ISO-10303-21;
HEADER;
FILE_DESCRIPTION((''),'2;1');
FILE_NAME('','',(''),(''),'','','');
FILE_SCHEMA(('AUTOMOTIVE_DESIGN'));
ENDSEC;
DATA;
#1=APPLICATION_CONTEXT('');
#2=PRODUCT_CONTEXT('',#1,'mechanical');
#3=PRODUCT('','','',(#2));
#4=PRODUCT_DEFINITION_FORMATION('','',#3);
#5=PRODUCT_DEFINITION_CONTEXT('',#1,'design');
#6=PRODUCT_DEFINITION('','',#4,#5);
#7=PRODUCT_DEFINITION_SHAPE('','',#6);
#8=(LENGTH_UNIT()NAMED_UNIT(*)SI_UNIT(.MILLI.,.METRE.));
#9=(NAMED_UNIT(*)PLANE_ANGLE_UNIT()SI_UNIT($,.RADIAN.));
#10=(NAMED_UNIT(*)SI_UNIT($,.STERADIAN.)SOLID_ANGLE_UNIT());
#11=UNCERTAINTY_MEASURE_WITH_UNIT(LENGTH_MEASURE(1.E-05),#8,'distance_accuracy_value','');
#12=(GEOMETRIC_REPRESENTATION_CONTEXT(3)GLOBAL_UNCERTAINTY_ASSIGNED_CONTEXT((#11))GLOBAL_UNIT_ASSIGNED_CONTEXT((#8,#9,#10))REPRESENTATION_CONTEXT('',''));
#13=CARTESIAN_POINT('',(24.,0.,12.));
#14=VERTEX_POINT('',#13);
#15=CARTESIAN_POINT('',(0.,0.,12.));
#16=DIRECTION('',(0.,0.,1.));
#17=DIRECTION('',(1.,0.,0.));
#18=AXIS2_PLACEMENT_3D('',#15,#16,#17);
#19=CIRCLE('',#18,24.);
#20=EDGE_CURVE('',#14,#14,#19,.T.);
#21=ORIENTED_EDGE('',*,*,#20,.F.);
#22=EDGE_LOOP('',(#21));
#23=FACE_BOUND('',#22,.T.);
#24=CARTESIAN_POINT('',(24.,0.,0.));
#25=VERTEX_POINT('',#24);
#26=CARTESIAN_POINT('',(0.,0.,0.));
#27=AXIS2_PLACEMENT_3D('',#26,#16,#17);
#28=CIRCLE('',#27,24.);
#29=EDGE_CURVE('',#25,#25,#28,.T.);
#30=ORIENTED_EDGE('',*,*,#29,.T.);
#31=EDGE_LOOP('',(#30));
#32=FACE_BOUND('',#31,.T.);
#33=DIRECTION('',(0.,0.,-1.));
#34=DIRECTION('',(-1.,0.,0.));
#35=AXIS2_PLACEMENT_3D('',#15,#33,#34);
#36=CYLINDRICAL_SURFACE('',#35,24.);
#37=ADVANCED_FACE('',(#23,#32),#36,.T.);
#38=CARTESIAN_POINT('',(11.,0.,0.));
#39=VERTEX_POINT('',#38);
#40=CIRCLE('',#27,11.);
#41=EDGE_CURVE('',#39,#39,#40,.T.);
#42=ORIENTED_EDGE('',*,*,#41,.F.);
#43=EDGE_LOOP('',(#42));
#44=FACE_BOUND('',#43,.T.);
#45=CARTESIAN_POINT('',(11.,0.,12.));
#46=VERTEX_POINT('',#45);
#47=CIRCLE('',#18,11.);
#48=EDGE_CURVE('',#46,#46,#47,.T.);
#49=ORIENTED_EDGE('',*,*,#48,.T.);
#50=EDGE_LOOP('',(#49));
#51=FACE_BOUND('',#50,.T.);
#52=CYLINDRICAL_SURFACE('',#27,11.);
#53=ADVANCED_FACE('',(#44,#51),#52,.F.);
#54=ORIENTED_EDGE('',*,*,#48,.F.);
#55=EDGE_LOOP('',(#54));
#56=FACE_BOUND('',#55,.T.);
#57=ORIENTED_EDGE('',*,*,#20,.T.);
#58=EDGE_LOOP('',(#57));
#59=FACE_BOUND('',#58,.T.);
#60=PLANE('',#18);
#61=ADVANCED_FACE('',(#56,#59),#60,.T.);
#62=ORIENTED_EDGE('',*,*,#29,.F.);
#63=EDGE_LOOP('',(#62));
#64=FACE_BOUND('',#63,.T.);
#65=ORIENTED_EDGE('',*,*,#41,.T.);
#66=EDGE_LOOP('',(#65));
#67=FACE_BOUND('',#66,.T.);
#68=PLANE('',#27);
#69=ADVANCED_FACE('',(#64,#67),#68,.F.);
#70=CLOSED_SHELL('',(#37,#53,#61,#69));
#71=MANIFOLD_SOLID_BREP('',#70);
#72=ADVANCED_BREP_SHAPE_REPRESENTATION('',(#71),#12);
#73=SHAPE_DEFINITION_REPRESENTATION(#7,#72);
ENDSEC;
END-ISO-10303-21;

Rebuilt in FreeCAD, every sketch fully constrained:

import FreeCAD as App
import Part
import Sketcher
from FreeCAD import Vector

doc = App.newDocument("Part")
body = doc.addObject("PartDesign::Body", "Body")

# Sketch on XY plane
sketch1 = doc.addObject("Sketcher::SketchObject", "Sketch")
body.addObject(sketch1)
sketch1.AttachmentSupport = (doc.XY_Plane, [""])
sketch1.MapMode = "FlatFace"
sketch1.addGeometry(Part.Circle(Vector(0, 0, 0), Vector(0, 0, 1), 24), False)
sketch1.addConstraint(Sketcher.Constraint("Coincident", 0, 3, -1, 1))
sketch1.addConstraint(Sketcher.Constraint("Diameter", 0, 48.0))
pad1 = doc.addObject("PartDesign::Pad", "Pad")
body.addObject(pad1)
pad1.Profile = sketch1
pad1.Length = 12

# Sketch on XY plane
sketch2 = doc.addObject("Sketcher::SketchObject", "Sketch001")
body.addObject(sketch2)
sketch2.AttachmentSupport = (doc.XY_Plane, [""])
sketch2.MapMode = "FlatFace"
sketch2.AttachmentOffset = App.Placement(Vector(0, 0, 12), App.Rotation())
sketch2.addGeometry(Part.Circle(Vector(0, 0, 0), Vector(0, 0, 1), 11), False)
sketch2.addConstraint(Sketcher.Constraint("Coincident", 0, 3, -1, 1))
sketch2.addConstraint(Sketcher.Constraint("Diameter", 0, 22.0))
pocket1 = doc.addObject("PartDesign::Pocket", "Pocket")
body.addObject(pocket1)
pocket1.Profile = sketch2
pocket1.Type = "ThroughAll"

doc.recompute()
